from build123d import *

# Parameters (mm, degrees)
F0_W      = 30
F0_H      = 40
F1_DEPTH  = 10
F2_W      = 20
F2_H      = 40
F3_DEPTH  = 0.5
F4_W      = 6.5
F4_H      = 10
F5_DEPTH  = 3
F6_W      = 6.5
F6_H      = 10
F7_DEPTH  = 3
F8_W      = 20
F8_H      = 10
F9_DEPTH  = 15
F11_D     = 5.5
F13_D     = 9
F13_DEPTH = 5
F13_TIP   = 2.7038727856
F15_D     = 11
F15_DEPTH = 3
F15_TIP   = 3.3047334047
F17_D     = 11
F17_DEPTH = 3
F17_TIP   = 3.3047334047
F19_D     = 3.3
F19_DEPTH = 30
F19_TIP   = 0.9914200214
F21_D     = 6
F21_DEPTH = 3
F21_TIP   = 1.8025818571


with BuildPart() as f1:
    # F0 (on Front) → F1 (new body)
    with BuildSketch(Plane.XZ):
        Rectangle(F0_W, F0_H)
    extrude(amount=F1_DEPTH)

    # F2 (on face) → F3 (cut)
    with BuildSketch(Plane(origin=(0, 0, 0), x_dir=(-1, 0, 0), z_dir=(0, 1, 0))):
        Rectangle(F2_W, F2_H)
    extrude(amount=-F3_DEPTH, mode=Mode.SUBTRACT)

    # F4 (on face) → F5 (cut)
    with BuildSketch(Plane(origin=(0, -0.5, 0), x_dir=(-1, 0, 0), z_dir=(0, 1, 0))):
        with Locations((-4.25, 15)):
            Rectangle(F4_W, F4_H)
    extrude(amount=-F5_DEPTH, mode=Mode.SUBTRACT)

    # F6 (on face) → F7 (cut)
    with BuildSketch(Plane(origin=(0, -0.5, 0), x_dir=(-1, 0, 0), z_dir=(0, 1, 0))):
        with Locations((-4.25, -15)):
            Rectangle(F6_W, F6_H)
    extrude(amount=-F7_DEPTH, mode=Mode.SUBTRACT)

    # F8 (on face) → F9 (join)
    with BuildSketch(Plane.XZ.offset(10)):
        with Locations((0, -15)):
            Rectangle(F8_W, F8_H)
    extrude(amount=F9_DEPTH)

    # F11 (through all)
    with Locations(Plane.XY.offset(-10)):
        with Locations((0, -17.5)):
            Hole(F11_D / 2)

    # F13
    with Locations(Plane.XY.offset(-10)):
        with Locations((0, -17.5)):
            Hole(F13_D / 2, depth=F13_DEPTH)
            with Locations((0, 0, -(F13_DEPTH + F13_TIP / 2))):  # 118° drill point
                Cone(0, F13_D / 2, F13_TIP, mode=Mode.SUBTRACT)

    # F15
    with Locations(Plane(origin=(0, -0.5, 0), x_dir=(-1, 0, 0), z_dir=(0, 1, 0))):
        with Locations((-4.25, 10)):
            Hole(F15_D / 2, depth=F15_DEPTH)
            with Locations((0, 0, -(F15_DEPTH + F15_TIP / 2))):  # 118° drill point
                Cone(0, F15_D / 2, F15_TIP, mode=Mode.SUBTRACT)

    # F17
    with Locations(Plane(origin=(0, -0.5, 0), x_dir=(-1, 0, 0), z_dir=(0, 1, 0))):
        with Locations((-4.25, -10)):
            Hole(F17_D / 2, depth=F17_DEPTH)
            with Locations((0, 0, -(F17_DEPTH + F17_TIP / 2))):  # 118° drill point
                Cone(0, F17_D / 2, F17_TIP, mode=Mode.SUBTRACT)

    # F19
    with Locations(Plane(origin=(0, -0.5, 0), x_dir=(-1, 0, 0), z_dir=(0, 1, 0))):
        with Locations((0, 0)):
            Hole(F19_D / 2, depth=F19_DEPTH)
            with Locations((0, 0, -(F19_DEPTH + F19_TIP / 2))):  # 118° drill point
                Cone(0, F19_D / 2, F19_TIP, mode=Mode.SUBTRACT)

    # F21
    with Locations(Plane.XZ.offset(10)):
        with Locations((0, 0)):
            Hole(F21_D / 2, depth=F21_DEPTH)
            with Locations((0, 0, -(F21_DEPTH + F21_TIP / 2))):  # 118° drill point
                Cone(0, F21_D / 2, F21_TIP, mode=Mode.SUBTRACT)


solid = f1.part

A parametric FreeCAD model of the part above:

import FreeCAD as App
import Part
import Sketcher

doc = App.newDocument("Part")
params = doc.addObject("Spreadsheet::Sheet", "Params")
for row, (alias, value) in enumerate([
    ("sketch1_width", "30 mm"),
    ("sketch1_height", "40 mm"),
    ("pad1_length", "10 mm"),
    ("sketch2_width", "20 mm"),
    ("sketch2_height", "40 mm"),
    ("pocket1_length", "0.5 mm"),
    ("sketch3_height", "10 mm"),
    ("sketch3_width", "6.5 mm"),
    ("pocket2_length", "3 mm"),
    ("sketch4_height", "10 mm"),
    ("sketch4_width", "6.5 mm"),
    ("pocket3_length", "3 mm"),
    ("sketch5_width", "20 mm"),
    ("sketch5_height", "10 mm"),
    ("pad2_length", "15 mm"),
    ("sketch6_diameter", "5.5 mm"),
    ("hole_diameter", "5.5 mm"),
    ("sketch7_diameter", "9 mm"),
    ("hole2_diameter", "9 mm"),
    ("hole2_depth", "5 mm"),
    ("sketch8_diameter", "11 mm"),
    ("hole3_diameter", "11 mm"),
    ("hole3_depth", "3 mm"),
    ("sketch9_diameter", "11 mm"),
    ("hole4_diameter", "11 mm"),
    ("hole4_depth", "3 mm"),
    ("sketch10_diameter", "3.3 mm"),
    ("hole5_diameter", "3.3 mm"),
    ("hole5_depth", "30 mm"),
    ("sketch11_diameter", "6 mm"),
    ("hole6_diameter", "6 mm"),
    ("hole6_depth", "3 mm"),
], start=1):
    params.set(f"A{row}", alias)
    params.set(f"B{row}", "=" + value)
    params.setAlias(f"B{row}", alias)

body = doc.addObject("PartDesign::Body", "Body")

# Sketch on XZ plane
sketch1 = doc.addObject("Sketcher::SketchObject", "Sketch")
body.addObject(sketch1)
sketch1.AttachmentSupport = (doc.XZ_Plane, [""])
sketch1.MapMode = "FlatFace"
sketch1.addGeometry(Part.LineSegment(App.Vector(-15, 20, 0), App.Vector(-15, -20, 0)), False)
sketch1.addGeometry(Part.LineSegment(App.Vector(-15, -20, 0), App.Vector(15, -20, 0)), False)
sketch1.addGeometry(Part.LineSegment(App.Vector(15, -20, 0), App.Vector(15, 20, 0)), False)
sketch1.addGeometry(Part.LineSegment(App.Vector(15, 20, 0), App.Vector(-15, 20, 0)), False)
sketch1.addConstraint(Sketcher.Constraint("Coincident", 0, 2, 1, 1))
sketch1.addConstraint(Sketcher.Constraint("Coincident", 1, 2, 2, 1))
sketch1.addConstraint(Sketcher.Constraint("Coincident", 2, 2, 3, 1))
sketch1.addConstraint(Sketcher.Constraint("Coincident", 3, 2, 0, 1))
sketch1.addConstraint(Sketcher.Constraint("Vertical", 0))
sketch1.addConstraint(Sketcher.Constraint("Horizontal", 1))
sketch1.addConstraint(Sketcher.Constraint("Vertical", 2))
sketch1.addConstraint(Sketcher.Constraint("Horizontal", 3))
sketch1.addConstraint(Sketcher.Constraint("Symmetric", 0, 2, 2, 2, -1, 1))
sketch1.addConstraint(Sketcher.Constraint("DistanceX", 1, 1, 1, 2, 30.0))
sketch1.addConstraint(Sketcher.Constraint("DistanceY", 0, 2, 0, 1, 40.0))
sketch1.setExpression("Constraints[9]", "Params.sketch1_width")
sketch1.setExpression("Constraints[10]", "Params.sketch1_height")
pad1 = doc.addObject("PartDesign::Pad", "Pad")
body.addObject(pad1)
pad1.Profile = sketch1
pad1.setExpression("Length", "Params.pad1_length")

# Sketch on XZ plane
sketch2 = doc.addObject("Sketcher::SketchObject", "Sketch001")
body.addObject(sketch2)
sketch2.AttachmentSupport = (doc.XZ_Plane, [""])
sketch2.MapMode = "FlatFace"
sketch2.addGeometry(Part.LineSegment(App.Vector(10, 20, 0), App.Vector(10, -20, 0)), False)
sketch2.addGeometry(Part.LineSegment(App.Vector(10, -20, 0), App.Vector(-10, -20, 0)), False)
sketch2.addGeometry(Part.LineSegment(App.Vector(-10, -20, 0), App.Vector(-10, 20, 0)), False)
sketch2.addGeometry(Part.LineSegment(App.Vector(-10, 20, 0), App.Vector(10, 20, 0)), False)
sketch2.addConstraint(Sketcher.Constraint("Coincident", 0, 2, 1, 1))
sketch2.addConstraint(Sketcher.Constraint("Coincident", 1, 2, 2, 1))
sketch2.addConstraint(Sketcher.Constraint("Coincident", 2, 2, 3, 1))
sketch2.addConstraint(Sketcher.Constraint("Coincident", 3, 2, 0, 1))
sketch2.addConstraint(Sketcher.Constraint("Vertical", 0))
sketch2.addConstraint(Sketcher.Constraint("Horizontal", 1))
sketch2.addConstraint(Sketcher.Constraint("Vertical", 2))
sketch2.addConstraint(Sketcher.Constraint("Horizontal", 3))
sketch2.addConstraint(Sketcher.Constraint("Symmetric", 0, 2, 2, 2, -1, 1))
sketch2.addConstraint(Sketcher.Constraint("DistanceX", 1, 2, 1, 1, 20.0))
sketch2.addConstraint(Sketcher.Constraint("DistanceY", 0, 2, 0, 1, 40.0))
sketch2.setExpression("Constraints[9]", "Params.sketch2_width")
sketch2.setExpression("Constraints[10]", "Params.sketch2_height")
pocket1 = doc.addObject("PartDesign::Pocket", "Pocket")
body.addObject(pocket1)
pocket1.Profile = sketch2
pocket1.setExpression("Length", "Params.pocket1_length")
pocket1.Reversed = True

# Sketch on XZ plane
sketch3 = doc.addObject("Sketcher::SketchObject", "Sketch002")
body.addObject(sketch3)
sketch3.AttachmentSupport = (doc.XZ_Plane, [""])
sketch3.MapMode = "FlatFace"
sketch3.AttachmentOffset = App.Placement(App.Vector(0, 0, 0.5), App.Rotation())
sketch3.addGeometry(Part.LineSegment(App.Vector(7.5, 20, 0), App.Vector(7.5, 10, 0)), False)
sketch3.addGeometry(Part.LineSegment(App.Vector(7.5, 10, 0), App.Vector(1, 10, 0)), False)
sketch3.addGeometry(Part.LineSegment(App.Vector(1, 10, 0), App.Vector(1, 20, 0)), False)
sketch3.addGeometry(Part.LineSegment(App.Vector(1, 20, 0), App.Vector(7.5, 20, 0)), False)
sketch3.addConstraint(Sketcher.Constraint("Coincident", 0, 2, 1, 1))
sketch3.addConstraint(Sketcher.Constraint("Coincident", 1, 2, 2, 1))
sketch3.addConstraint(Sketcher.Constraint("Coincident", 2, 2, 3, 1))
sketch3.addConstraint(Sketcher.Constraint("Coincident", 3, 2, 0, 1))
sketch3.addConstraint(Sketcher.Constraint("Vertical", 0))
sketch3.addConstraint(Sketcher.Constraint("Horizontal", 1))
sketch3.addConstraint(Sketcher.Constraint("Vertical", 2))
sketch3.addConstraint(Sketcher.Constraint("Horizontal", 3))
sketch3.addConstraint(Sketcher.Constraint("DistanceY", 0, 2, 0, 1, 10.0))
sketch3.addConstraint(Sketcher.Constraint("DistanceX", 1, 2, 1, 1, 6.5))
sketch3.addConstraint(Sketcher.Constraint("DistanceY", -1, 1, 0, 2, 10.0))
sketch3.addConstraint(Sketcher.Constraint("DistanceX", -1, 1, 1, 2, 1.0))
sketch3.setExpression("Constraints[8]", "Params.sketch3_height")
sketch3.setExpression("Constraints[9]", "Params.sketch3_width")
pocket2 = doc.addObject("PartDesign::Pocket", "Pocket001")
body.addObject(pocket2)
pocket2.Profile = sketch3
pocket2.setExpression("Length", "Params.pocket2_length")
pocket2.Reversed = True

# Sketch on XZ plane
sketch4 = doc.addObject("Sketcher::SketchObject", "Sketch003")
body.addObject(sketch4)
sketch4.AttachmentSupport = (doc.XZ_Plane, [""])
sketch4.MapMode = "FlatFace"
sketch4.AttachmentOffset = App.Placement(App.Vector(0, 0, 0.5), App.Rotation())
sketch4.addGeometry(Part.LineSegment(App.Vector(7.5, -10, 0), App.Vector(7.5, -20, 0)), False)
sketch4.addGeometry(Part.LineSegment(App.Vector(7.5, -20, 0), App.Vector(1, -20, 0)), False)
sketch4.addGeometry(Part.LineSegment(App.Vector(1, -20, 0), App.Vector(1, -10, 0)), False)
sketch4.addGeometry(Part.LineSegment(App.Vector(1, -10, 0), App.Vector(7.5, -10, 0)), False)
sketch4.addConstraint(Sketcher.Constraint("Coincident", 0, 2, 1, 1))
sketch4.addConstraint(Sketcher.Constraint("Coincident", 1, 2, 2, 1))
sketch4.addConstraint(Sketcher.Constraint("Coincident", 2, 2, 3, 1))
sketch4.addConstraint(Sketcher.Constraint("Coincident", 3, 2, 0, 1))
sketch4.addConstraint(Sketcher.Constraint("Vertical", 0))
sketch4.addConstraint(Sketcher.Constraint("Horizontal", 1))
sketch4.addConstraint(Sketcher.Constraint("Vertical", 2))
sketch4.addConstraint(Sketcher.Constraint("Horizontal", 3))
sketch4.addConstraint(Sketcher.Constraint("DistanceY", 0, 2, 0, 1, 10.0))
sketch4.addConstraint(Sketcher.Constraint("DistanceX", 1, 2, 1, 1, 6.5))
sketch4.addConstraint(Sketcher.Constraint("DistanceY", 0, 2, -1, 1, 20.0))
sketch4.addConstraint(Sketcher.Constraint("DistanceX", -1, 1, 1, 2, 1.0))
sketch4.setExpression("Constraints[8]", "Params.sketch4_height")
sketch4.setExpression("Constraints[9]", "Params.sketch4_width")
pocket3 = doc.addObject("PartDesign::Pocket", "Pocket002")
body.addObject(pocket3)
pocket3.Profile = sketch4
pocket3.setExpression("Length", "Params.pocket3_length")
pocket3.Reversed = True

# Sketch on XZ plane
sketch5 = doc.addObject("Sketcher::SketchObject", "Sketch004")
body.addObject(sketch5)
sketch5.AttachmentSupport = (doc.XZ_Plane, [""])
sketch5.MapMode = "FlatFace"
sketch5.AttachmentOffset = App.Placement(App.Vector(0, 0, 10), App.Rotation())
sketch5.addGeometry(Part.LineSegment(App.Vector(-10, -10, 0), App.Vector(-10, -20, 0)), False)
sketch5.addGeometry(Part.LineSegment(App.Vector(-10, -20, 0), App.Vector(10, -20, 0)), False)
sketch5.addGeometry(Part.LineSegment(App.Vector(10, -20, 0), App.Vector(10, -10, 0)), False)
sketch5.addGeometry(Part.LineSegment(App.Vector(10, -10, 0), App.Vector(-10, -10, 0)), False)
sketch5.addConstraint(Sketcher.Constraint("Coincident", 0, 2, 1, 1))
sketch5.addConstraint(Sketcher.Constraint("Coincident", 1, 2, 2, 1))
sketch5.addConstraint(Sketcher.Constraint("Coincident", 2, 2, 3, 1))
sketch5.addConstraint(Sketcher.Constraint("Coincident", 3, 2, 0, 1))
sketch5.addConstraint(Sketcher.Constraint("Vertical", 0))
sketch5.addConstraint(Sketcher.Constraint("Horizontal", 1))
sketch5.addConstraint(Sketcher.Constraint("Vertical", 2))
sketch5.addConstraint(Sketcher.Constraint("Horizontal", 3))
sketch5.addConstraint(Sketcher.Constraint("DistanceX", 1, 1, 1, 2, 20.0))
sketch5.addConstraint(Sketcher.Constraint("DistanceY", 0, 2, 0, 1, 10.0))
sketch5.addConstraint(Sketcher.Constraint("DistanceX", 0, 2, -1, 1, 10.0))
sketch5.addConstraint(Sketcher.Constraint("DistanceY", 0, 2, -1, 1, 20.0))
sketch5.setExpression("Constraints[8]", "Params.sketch5_width")
sketch5.setExpression("Constraints[9]", "Params.sketch5_height")
pad2 = doc.addObject("PartDesign::Pad", "Pad001")
body.addObject(pad2)
pad2.Profile = sketch5
pad2.setExpression("Length", "Params.pad2_length")

# Sketch on XY plane
sketch6 = doc.addObject("Sketcher::SketchObject", "Sketch005")
body.addObject(sketch6)
sketch6.AttachmentSupport = (doc.XY_Plane, [""])
sketch6.MapMode = "FlatFace"
sketch6.AttachmentOffset = App.Placement(App.Vector(0, 0, -10), App.Rotation())
sketch6.addGeometry(Part.Circle(App.Vector(0, -17.5, 0), App.Vector(0, 0, 1), 2.75), False)
sketch6.addConstraint(Sketcher.Constraint("PointOnObject", 0, 3, -2))
sketch6.addConstraint(Sketcher.Constraint("Diameter", 0, 5.5))
sketch6.addConstraint(Sketcher.Constraint("DistanceY", 0, 3, -1, 1, 17.5))
sketch6.setExpression("Constraints[1]", "Params.sketch6_diameter")
doc.recompute()
hole = doc.addObject("PartDesign::Hole", "Hole")
body.addObject(hole)
hole.Profile = sketch6
hole.ThreadType = "None"
hole.setExpression("Diameter", "Params.hole_diameter")
hole.DepthType = "ThroughAll"

# Sketch on XY plane
sketch7 = doc.addObject("Sketcher::SketchObject", "Sketch006")
body.addObject(sketch7)
sketch7.AttachmentSupport = (doc.XY_Plane, [""])
sketch7.MapMode = "FlatFace"
sketch7.AttachmentOffset = App.Placement(App.Vector(0, 0, -10), App.Rotation())
sketch7.addGeometry(Part.Circle(App.Vector(0, -17.5, 0), App.Vector(0, 0, 1), 4.5), False)
sketch7.addConstraint(Sketcher.Constraint("PointOnObject", 0, 3, -2))
sketch7.addConstraint(Sketcher.Constraint("Diameter", 0, 9.0))
sketch7.addConstraint(Sketcher.Constraint("DistanceY", 0, 3, -1, 1, 17.5))
sketch7.setExpression("Constraints[1]", "Params.sketch7_diameter")
doc.recompute()
hole2 = doc.addObject("PartDesign::Hole", "Hole001")
body.addObject(hole2)
hole2.Profile = sketch7
hole2.ThreadType = "None"
hole2.setExpression("Diameter", "Params.hole2_diameter")
hole2.DepthType = "Dimension"
hole2.setExpression("Depth", "Params.hole2_depth")
hole2.DrillPoint = "Angled"
hole2.DrillPointAngle = 118

# Sketch on XZ plane
sketch8 = doc.addObject("Sketcher::SketchObject", "Sketch007")
body.addObject(sketch8)
sketch8.AttachmentSupport = (doc.XZ_Plane, [""])
sketch8.MapMode = "FlatFace"
sketch8.AttachmentOffset = App.Placement(App.Vector(0, 0, 0.5), App.Rotation())
sketch8.addGeometry(Part.Circle(App.Vector(4.25, 10, 0), App.Vector(0, 0, 1), 5.5), False)
sketch8.addConstraint(Sketcher.Constraint("Diameter", 0, 11.0))
sketch8.addConstraint(Sketcher.Constraint("DistanceY", -1, 1, 0, 3, 10.0))
sketch8.addConstraint(Sketcher.Constraint("DistanceX", -1, 1, 0, 3, 4.25))
sketch8.setExpression("Constraints[0]", "Params.sketch8_diameter")
doc.recompute()
hole3 = doc.addObject("PartDesign::Hole", "Hole002")
body.addObject(hole3)
hole3.Profile = sketch8
hole3.ThreadType = "None"
hole3.setExpression("Diameter", "Params.hole3_diameter")
hole3.DepthType = "Dimension"
hole3.setExpression("Depth", "Params.hole3_depth")
hole3.DrillPoint = "Angled"
hole3.DrillPointAngle = 118
hole3.Reversed = True

# Sketch on XZ plane
sketch9 = doc.addObject("Sketcher::SketchObject", "Sketch008")
body.addObject(sketch9)
sketch9.AttachmentSupport = (doc.XZ_Plane, [""])
sketch9.MapMode = "FlatFace"
sketch9.AttachmentOffset = App.Placement(App.Vector(0, 0, 0.5), App.Rotation())
sketch9.addGeometry(Part.Circle(App.Vector(4.25, -10, 0), App.Vector(0, 0, 1), 5.5), False)
sketch9.addConstraint(Sketcher.Constraint("Diameter", 0, 11.0))
sketch9.addConstraint(Sketcher.Constraint("DistanceY", 0, 3, -1, 1, 10.0))
sketch9.addConstraint(Sketcher.Constraint("DistanceX", -1, 1, 0, 3, 4.25))
sketch9.setExpression("Constraints[0]", "Params.sketch9_diameter")
doc.recompute()
hole4 = doc.addObject("PartDesign::Hole", "Hole003")
body.addObject(hole4)
hole4.Profile = sketch9
hole4.ThreadType = "None"
hole4.setExpression("Diameter", "Params.hole4_diameter")
hole4.DepthType = "Dimension"
hole4.setExpression("Depth", "Params.hole4_depth")
hole4.DrillPoint = "Angled"
hole4.DrillPointAngle = 118
hole4.Reversed = True

# Sketch on XZ plane
sketch10 = doc.addObject("Sketcher::SketchObject", "Sketch009")
body.addObject(sketch10)
sketch10.AttachmentSupport = (doc.XZ_Plane, [""])
sketch10.MapMode = "FlatFace"
sketch10.AttachmentOffset = App.Placement(App.Vector(0, 0, 0.5), App.Rotation())
sketch10.addGeometry(Part.Circle(App.Vector(0, 0, 0), App.Vector(0, 0, 1), 1.65), False)
sketch10.addConstraint(Sketcher.Constraint("Coincident", 0, 3, -1, 1))
sketch10.addConstraint(Sketcher.Constraint("Diameter", 0, 3.3))
sketch10.setExpression("Constraints[1]", "Params.sketch10_diameter")
doc.recompute()
hole5 = doc.addObject("PartDesign::Hole", "Hole004")
body.addObject(hole5)
hole5.Profile = sketch10
hole5.ThreadType = "None"
hole5.setExpression("Diameter", "Params.hole5_diameter")
hole5.DepthType = "Dimension"
hole5.setExpression("Depth", "Params.hole5_depth")
hole5.DrillPoint = "Angled"
hole5.DrillPointAngle = 118
hole5.Reversed = True

# Sketch on XZ plane
sketch11 = doc.addObject("Sketcher::SketchObject", "Sketch010")
body.addObject(sketch11)
sketch11.AttachmentSupport = (doc.XZ_Plane, [""])
sketch11.MapMode = "FlatFace"
sketch11.AttachmentOffset = App.Placement(App.Vector(0, 0, 10), App.Rotation())
sketch11.addGeometry(Part.Circle(App.Vector(0, 0, 0), App.Vector(0, 0, 1), 3), False)
sketch11.addConstraint(Sketcher.Constraint("Coincident", 0, 3, -1, 1))
sketch11.addConstraint(Sketcher.Constraint("Diameter", 0, 6.0))
sketch11.setExpression("Constraints[1]", "Params.sketch11_diameter")
doc.recompute()
hole6 = doc.addObject("PartDesign::Hole", "Hole005")
body.addObject(hole6)
hole6.Profile = sketch11
hole6.ThreadType = "None"
hole6.setExpression("Diameter", "Params.hole6_diameter")
hole6.DepthType = "Dimension"
hole6.setExpression("Depth", "Params.hole6_depth")
hole6.DrillPoint = "Angled"
hole6.DrillPointAngle = 118

doc.recompute()
